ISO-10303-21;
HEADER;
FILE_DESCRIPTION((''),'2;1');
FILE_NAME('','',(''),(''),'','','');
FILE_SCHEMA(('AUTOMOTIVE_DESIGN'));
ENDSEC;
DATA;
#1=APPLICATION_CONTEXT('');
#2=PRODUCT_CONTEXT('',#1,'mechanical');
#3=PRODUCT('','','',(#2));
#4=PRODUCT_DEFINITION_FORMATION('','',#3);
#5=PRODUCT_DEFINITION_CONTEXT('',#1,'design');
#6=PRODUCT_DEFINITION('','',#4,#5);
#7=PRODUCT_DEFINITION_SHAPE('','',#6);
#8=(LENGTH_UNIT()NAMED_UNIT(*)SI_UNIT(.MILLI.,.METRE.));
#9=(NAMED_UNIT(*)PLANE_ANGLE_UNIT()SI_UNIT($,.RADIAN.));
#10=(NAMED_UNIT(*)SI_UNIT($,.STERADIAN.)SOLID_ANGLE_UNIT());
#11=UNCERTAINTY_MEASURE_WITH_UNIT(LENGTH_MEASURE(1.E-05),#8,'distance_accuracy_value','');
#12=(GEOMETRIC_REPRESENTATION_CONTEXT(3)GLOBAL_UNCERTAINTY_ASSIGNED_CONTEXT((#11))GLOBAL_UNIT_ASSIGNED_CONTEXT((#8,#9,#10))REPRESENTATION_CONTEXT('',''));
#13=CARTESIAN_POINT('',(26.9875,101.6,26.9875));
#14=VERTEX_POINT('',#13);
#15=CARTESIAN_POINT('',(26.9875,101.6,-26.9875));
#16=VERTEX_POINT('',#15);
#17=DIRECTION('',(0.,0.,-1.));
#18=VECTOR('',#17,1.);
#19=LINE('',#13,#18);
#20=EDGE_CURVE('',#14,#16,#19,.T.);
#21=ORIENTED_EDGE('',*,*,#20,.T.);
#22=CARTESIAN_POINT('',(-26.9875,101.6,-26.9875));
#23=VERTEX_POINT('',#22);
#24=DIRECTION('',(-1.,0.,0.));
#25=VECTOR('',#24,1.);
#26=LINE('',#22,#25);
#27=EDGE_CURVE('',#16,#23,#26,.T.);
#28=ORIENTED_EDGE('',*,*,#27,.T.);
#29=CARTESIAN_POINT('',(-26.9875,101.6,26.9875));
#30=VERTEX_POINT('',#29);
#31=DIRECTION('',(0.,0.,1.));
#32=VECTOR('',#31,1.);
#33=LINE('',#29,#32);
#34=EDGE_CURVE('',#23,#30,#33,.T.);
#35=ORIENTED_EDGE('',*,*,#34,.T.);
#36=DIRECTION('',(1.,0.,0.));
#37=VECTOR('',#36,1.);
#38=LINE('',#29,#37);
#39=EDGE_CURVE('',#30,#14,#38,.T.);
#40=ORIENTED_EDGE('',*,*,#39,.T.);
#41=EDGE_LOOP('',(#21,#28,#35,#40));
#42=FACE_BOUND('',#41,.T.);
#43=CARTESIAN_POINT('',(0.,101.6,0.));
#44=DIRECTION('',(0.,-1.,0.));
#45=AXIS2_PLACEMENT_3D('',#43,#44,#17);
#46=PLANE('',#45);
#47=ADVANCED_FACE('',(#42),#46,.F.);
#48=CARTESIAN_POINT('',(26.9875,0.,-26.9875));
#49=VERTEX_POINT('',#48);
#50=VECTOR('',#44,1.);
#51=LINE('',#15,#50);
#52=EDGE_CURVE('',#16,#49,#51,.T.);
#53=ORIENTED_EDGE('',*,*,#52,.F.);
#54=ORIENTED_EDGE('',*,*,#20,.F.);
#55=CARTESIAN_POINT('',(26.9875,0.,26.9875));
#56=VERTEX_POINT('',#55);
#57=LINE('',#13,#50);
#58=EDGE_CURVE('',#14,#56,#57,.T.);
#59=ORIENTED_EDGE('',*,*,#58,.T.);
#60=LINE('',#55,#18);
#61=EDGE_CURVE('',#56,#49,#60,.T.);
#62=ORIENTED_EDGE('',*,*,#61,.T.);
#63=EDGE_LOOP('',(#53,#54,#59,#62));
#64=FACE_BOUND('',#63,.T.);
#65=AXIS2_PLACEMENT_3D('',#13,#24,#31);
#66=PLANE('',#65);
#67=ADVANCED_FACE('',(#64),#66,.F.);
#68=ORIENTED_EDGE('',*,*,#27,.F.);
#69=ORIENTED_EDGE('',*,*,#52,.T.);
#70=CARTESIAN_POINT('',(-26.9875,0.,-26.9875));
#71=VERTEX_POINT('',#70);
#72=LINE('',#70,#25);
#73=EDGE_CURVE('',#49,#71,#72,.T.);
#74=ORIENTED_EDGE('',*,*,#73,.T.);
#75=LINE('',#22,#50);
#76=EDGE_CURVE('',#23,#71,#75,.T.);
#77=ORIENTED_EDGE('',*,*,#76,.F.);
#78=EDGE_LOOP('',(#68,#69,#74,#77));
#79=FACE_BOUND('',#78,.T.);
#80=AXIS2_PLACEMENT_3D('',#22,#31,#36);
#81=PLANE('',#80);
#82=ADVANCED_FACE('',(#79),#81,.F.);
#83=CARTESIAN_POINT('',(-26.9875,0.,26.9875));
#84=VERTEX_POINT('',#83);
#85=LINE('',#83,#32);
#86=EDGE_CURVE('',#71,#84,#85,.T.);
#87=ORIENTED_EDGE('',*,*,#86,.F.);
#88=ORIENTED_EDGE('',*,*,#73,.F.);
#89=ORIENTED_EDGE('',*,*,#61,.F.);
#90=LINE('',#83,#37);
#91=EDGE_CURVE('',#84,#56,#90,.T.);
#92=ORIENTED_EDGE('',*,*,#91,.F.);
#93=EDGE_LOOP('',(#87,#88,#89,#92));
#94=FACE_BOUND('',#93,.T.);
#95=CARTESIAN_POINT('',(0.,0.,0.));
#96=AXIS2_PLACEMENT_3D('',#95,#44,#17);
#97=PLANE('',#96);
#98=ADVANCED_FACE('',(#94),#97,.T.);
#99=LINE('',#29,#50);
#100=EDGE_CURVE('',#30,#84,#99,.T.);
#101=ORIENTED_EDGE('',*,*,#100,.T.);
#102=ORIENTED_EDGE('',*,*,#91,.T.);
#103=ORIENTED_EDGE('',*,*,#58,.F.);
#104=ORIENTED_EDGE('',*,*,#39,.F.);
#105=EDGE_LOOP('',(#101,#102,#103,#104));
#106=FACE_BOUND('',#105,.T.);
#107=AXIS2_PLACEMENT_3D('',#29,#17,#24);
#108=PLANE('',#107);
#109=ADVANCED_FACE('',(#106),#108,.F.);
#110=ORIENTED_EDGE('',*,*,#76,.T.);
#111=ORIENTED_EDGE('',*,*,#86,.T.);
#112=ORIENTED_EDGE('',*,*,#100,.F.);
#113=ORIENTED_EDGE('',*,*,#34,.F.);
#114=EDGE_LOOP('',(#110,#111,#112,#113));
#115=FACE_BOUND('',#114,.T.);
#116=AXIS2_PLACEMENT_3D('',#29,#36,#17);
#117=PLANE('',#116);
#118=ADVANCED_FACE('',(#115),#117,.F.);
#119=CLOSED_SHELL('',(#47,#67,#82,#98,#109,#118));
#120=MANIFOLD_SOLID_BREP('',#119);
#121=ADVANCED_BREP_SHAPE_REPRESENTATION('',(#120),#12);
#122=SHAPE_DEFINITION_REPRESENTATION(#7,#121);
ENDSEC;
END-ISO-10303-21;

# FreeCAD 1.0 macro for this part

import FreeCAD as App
import Part
import Sketcher
from FreeCAD import Vector
Q = App.Units.Quantity

doc = App.newDocument("Part")
body = doc.addObject("PartDesign::Body", "Body")

# Sketch on XZ plane
sketch1 = body.newObject("Sketcher::SketchObject", "Sketch")
sketch1.AttachmentSupport = (doc.getObject("XZ_Plane"), [""])
sketch1.MapMode = "FlatFace"
sketch1.addGeometry(Part.LineSegment(Vector(-26.9875, -26.9875, 0), Vector(-26.9875, 26.9875, 0)), False)
sketch1.addGeometry(Part.LineSegment(Vector(-26.9875, 26.9875, 0), Vector(26.9875, 26.9875, 0)), False)
sketch1.addGeometry(Part.LineSegment(Vector(26.9875, 26.9875, 0), Vector(26.9875, -26.9875, 0)), False)
sketch1.addGeometry(Part.LineSegment(Vector(26.9875, -26.9875, 0), Vector(-26.9875, -26.9875, 0)), False)
sketch1.addConstraint(Sketcher.Constraint("Coincident", 0, 2, 1, 1))
sketch1.addConstraint(Sketcher.Constraint("Coincident", 1, 2, 2, 1))
sketch1.addConstraint(Sketcher.Constraint("Coincident", 2, 2, 3, 1))
sketch1.addConstraint(Sketcher.Constraint("Coincident", 3, 2, 0, 1))
sketch1.addConstraint(Sketcher.Constraint("Vertical", 0))
sketch1.addConstraint(Sketcher.Constraint("Horizontal", 1))
sketch1.addConstraint(Sketcher.Constraint("Vertical", 2))
sketch1.addConstraint(Sketcher.Constraint("Horizontal", 3))
sketch1.addConstraint(Sketcher.Constraint("Symmetric", 0, 2, 2, 2, -1, 1))
sketch1.addConstraint(Sketcher.Constraint("Equal", 3, 0))
sketch1.addConstraint(Sketcher.Constraint("DistanceX", 1, 1, 1, 2, Q("2.125 in")))
pad1 = body.newObject("PartDesign::Pad", "Pad")
pad1.Profile = sketch1
pad1.Length = Q("4 in")
pad1.Reversed = True

doc.recompute()
